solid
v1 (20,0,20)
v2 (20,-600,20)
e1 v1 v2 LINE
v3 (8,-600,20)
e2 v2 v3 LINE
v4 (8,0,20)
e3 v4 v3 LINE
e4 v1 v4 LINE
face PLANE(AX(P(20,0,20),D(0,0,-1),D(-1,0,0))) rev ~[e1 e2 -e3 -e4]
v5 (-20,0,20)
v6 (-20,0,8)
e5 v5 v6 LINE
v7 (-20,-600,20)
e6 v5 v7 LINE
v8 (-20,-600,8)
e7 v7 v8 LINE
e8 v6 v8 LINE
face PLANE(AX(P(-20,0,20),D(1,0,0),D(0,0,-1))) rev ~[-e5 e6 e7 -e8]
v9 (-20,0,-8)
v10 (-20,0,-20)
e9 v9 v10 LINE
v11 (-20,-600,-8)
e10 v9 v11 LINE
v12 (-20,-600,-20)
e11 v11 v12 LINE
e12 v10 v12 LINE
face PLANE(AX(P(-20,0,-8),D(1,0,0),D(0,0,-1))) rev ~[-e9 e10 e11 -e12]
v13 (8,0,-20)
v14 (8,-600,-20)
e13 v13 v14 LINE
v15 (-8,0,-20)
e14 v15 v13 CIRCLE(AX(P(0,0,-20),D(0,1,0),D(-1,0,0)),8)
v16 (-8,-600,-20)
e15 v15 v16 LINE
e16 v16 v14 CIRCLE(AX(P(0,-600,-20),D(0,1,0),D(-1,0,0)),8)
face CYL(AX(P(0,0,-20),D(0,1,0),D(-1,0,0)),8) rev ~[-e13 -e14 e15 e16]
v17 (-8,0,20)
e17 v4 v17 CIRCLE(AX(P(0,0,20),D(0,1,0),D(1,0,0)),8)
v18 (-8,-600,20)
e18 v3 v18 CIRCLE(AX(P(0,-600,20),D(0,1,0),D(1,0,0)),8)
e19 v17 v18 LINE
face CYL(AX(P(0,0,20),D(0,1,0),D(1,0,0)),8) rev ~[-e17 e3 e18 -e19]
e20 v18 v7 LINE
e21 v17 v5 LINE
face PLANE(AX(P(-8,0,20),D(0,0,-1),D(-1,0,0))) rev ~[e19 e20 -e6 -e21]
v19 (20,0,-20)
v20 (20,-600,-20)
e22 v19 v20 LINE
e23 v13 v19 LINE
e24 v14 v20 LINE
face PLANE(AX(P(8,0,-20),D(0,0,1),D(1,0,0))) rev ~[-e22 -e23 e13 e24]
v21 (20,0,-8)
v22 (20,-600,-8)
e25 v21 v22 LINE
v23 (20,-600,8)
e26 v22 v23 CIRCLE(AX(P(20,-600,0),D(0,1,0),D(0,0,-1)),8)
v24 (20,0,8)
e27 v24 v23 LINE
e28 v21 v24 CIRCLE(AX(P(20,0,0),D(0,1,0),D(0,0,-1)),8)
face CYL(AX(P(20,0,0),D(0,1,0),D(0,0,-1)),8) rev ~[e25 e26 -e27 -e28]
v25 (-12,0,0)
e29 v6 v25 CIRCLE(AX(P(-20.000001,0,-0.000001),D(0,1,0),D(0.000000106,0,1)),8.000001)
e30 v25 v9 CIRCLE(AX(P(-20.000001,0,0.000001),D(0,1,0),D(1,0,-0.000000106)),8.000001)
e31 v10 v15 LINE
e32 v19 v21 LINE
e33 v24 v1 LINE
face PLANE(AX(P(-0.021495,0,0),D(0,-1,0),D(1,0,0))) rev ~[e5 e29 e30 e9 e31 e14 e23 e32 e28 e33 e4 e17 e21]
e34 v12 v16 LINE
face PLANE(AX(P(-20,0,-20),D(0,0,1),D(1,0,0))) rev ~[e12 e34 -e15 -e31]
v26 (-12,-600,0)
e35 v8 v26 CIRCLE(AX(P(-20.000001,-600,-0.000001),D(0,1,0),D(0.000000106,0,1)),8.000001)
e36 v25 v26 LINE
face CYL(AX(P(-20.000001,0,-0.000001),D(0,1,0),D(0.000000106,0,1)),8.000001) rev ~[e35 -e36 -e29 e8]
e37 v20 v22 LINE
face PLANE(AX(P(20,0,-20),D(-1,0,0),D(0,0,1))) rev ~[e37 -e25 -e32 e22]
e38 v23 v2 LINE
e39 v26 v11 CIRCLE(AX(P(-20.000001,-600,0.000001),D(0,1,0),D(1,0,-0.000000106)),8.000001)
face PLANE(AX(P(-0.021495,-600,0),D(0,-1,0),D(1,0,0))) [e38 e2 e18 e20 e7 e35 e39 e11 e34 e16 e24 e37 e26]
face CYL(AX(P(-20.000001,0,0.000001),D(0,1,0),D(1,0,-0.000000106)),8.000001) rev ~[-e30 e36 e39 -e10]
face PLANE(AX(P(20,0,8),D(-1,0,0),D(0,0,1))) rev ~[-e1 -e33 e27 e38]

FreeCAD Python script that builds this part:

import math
import FreeCAD as App
import Part
import Sketcher
from FreeCAD import Vector

doc = App.newDocument("Part")
body = doc.addObject("PartDesign::Body", "Body")

# Sketch on XZ plane
sketch1 = body.newObject("Sketcher::SketchObject", "Sketch")
sketch1.AttachmentSupport = (doc.getObject("XZ_Plane"), [""])
sketch1.MapMode = "FlatFace"
sketch1.addGeometry([
    Part.LineSegment(Vector(8, -20, 0), Vector(20, -20, 0)),  # 0
    Part.LineSegment(Vector(20, -20, 0), Vector(20, -8, 0)),  # 1
    Part.ArcOfCircle(Part.Circle(Vector(20, 0, 0), Vector(0, 0, 1), 8), math.radians(90), math.radians(270)),  # 2
    Part.LineSegment(Vector(20, 8, 0), Vector(20, 20, 0)),  # 3
    Part.LineSegment(Vector(20, 20, 0), Vector(8, 20, 0)),  # 4
    Part.ArcOfCircle(Part.Circle(Vector(0, 20, 0), Vector(0, 0, 1), 8), math.radians(180), math.radians(360)),  # 5
    Part.LineSegment(Vector(-8, 20, 0), Vector(-20, 20, 0)),  # 6
    Part.LineSegment(Vector(-20, 20, 0), Vector(-20, 8, 0)),  # 7
    Part.ArcOfCircle(Part.Circle(Vector(-20.000001, -0.000001, 0), Vector(0, 0, 1), 8.000001), math.radians(0.000006), math.radians(89.999994)),  # 8
    Part.ArcOfCircle(Part.Circle(Vector(-20.000001, 0.000001, 0), Vector(0, 0, 1), 8.000001), math.radians(-89.999994), math.radians(-0.000006)),  # 9
    Part.LineSegment(Vector(-20, -8, 0), Vector(-20, -20, 0)),  # 10
    Part.LineSegment(Vector(-20, -20, 0), Vector(-8, -20, 0)),  # 11
    Part.ArcOfCircle(Part.Circle(Vector(0, -20, 0), Vector(0, 0, 1), 8), math.radians(0), math.radians(180)),  # 12
], False)
sketch1.addConstraint([
    Sketcher.Constraint("Coincident", 0, 2, 1, 1),
    Sketcher.Constraint("Coincident", 1, 2, 2, 2),
    Sketcher.Constraint("Coincident", 2, 1, 3, 1),
    Sketcher.Constraint("Coincident", 3, 2, 4, 1),
    Sketcher.Constraint("Coincident", 4, 2, 5, 2),
    Sketcher.Constraint("Coincident", 5, 1, 6, 1),
    Sketcher.Constraint("Coincident", 6, 2, 7, 1),
    Sketcher.Constraint("Coincident", 7, 2, 8, 2),
    Sketcher.Constraint("Tangent", 8, 1, 9, 2),
    Sketcher.Constraint("Coincident", 9, 1, 10, 1),
    Sketcher.Constraint("Coincident", 10, 2, 11, 1),
    Sketcher.Constraint("Coincident", 11, 2, 12, 2),
    Sketcher.Constraint("Coincident", 12, 1, 0, 1),
    Sketcher.Constraint("Horizontal", 0),
    Sketcher.Constraint("Vertical", 1),
    Sketcher.Constraint("Vertical", 3),
    Sketcher.Constraint("Horizontal", 4),
    Sketcher.Constraint("Horizontal", 6),
    Sketcher.Constraint("Vertical", 7),
    Sketcher.Constraint("Vertical", 10),
    Sketcher.Constraint("Horizontal", 11),
    Sketcher.Constraint("Equal", 2, 5),
    Sketcher.Constraint("Equal", 5, 8),
    Sketcher.Constraint("Equal", 8, 9),
    Sketcher.Constraint("Equal", 9, 12),
    Sketcher.Constraint("Symmetric", 2, 3, 8, 3, -1, 1),
    Sketcher.Constraint("Symmetric", 5, 3, 12, 3, -1, 1),
    Sketcher.Constraint("Symmetric", 0, 2, 6, 2, -1, 1),
    Sketcher.Constraint("Symmetric", 3, 2, 10, 2, -1, 1),
    Sketcher.Constraint("Symmetric", 4, 2, 5, 1, -2),
    Sketcher.Constraint("Symmetric", 2, 1, 7, 2, -2),
    Sketcher.Constraint("PointOnObject", 8, 1, -1),
    Sketcher.Constraint("Horizontal", 12, 3, 0, 2),
    Sketcher.Constraint("Vertical", 2, 3, 0, 2),
    Sketcher.Constraint("Equal", 11, 1),
    Sketcher.Constraint("Radius", 2, 8.0),
    Sketcher.Constraint("DistanceX", 0, 1, 0, 2, 12.0),
])
pad1 = body.newObject("PartDesign::Pad", "Pad")
pad1.Profile = sketch1
pad1.Length = 600

doc.recompute()
